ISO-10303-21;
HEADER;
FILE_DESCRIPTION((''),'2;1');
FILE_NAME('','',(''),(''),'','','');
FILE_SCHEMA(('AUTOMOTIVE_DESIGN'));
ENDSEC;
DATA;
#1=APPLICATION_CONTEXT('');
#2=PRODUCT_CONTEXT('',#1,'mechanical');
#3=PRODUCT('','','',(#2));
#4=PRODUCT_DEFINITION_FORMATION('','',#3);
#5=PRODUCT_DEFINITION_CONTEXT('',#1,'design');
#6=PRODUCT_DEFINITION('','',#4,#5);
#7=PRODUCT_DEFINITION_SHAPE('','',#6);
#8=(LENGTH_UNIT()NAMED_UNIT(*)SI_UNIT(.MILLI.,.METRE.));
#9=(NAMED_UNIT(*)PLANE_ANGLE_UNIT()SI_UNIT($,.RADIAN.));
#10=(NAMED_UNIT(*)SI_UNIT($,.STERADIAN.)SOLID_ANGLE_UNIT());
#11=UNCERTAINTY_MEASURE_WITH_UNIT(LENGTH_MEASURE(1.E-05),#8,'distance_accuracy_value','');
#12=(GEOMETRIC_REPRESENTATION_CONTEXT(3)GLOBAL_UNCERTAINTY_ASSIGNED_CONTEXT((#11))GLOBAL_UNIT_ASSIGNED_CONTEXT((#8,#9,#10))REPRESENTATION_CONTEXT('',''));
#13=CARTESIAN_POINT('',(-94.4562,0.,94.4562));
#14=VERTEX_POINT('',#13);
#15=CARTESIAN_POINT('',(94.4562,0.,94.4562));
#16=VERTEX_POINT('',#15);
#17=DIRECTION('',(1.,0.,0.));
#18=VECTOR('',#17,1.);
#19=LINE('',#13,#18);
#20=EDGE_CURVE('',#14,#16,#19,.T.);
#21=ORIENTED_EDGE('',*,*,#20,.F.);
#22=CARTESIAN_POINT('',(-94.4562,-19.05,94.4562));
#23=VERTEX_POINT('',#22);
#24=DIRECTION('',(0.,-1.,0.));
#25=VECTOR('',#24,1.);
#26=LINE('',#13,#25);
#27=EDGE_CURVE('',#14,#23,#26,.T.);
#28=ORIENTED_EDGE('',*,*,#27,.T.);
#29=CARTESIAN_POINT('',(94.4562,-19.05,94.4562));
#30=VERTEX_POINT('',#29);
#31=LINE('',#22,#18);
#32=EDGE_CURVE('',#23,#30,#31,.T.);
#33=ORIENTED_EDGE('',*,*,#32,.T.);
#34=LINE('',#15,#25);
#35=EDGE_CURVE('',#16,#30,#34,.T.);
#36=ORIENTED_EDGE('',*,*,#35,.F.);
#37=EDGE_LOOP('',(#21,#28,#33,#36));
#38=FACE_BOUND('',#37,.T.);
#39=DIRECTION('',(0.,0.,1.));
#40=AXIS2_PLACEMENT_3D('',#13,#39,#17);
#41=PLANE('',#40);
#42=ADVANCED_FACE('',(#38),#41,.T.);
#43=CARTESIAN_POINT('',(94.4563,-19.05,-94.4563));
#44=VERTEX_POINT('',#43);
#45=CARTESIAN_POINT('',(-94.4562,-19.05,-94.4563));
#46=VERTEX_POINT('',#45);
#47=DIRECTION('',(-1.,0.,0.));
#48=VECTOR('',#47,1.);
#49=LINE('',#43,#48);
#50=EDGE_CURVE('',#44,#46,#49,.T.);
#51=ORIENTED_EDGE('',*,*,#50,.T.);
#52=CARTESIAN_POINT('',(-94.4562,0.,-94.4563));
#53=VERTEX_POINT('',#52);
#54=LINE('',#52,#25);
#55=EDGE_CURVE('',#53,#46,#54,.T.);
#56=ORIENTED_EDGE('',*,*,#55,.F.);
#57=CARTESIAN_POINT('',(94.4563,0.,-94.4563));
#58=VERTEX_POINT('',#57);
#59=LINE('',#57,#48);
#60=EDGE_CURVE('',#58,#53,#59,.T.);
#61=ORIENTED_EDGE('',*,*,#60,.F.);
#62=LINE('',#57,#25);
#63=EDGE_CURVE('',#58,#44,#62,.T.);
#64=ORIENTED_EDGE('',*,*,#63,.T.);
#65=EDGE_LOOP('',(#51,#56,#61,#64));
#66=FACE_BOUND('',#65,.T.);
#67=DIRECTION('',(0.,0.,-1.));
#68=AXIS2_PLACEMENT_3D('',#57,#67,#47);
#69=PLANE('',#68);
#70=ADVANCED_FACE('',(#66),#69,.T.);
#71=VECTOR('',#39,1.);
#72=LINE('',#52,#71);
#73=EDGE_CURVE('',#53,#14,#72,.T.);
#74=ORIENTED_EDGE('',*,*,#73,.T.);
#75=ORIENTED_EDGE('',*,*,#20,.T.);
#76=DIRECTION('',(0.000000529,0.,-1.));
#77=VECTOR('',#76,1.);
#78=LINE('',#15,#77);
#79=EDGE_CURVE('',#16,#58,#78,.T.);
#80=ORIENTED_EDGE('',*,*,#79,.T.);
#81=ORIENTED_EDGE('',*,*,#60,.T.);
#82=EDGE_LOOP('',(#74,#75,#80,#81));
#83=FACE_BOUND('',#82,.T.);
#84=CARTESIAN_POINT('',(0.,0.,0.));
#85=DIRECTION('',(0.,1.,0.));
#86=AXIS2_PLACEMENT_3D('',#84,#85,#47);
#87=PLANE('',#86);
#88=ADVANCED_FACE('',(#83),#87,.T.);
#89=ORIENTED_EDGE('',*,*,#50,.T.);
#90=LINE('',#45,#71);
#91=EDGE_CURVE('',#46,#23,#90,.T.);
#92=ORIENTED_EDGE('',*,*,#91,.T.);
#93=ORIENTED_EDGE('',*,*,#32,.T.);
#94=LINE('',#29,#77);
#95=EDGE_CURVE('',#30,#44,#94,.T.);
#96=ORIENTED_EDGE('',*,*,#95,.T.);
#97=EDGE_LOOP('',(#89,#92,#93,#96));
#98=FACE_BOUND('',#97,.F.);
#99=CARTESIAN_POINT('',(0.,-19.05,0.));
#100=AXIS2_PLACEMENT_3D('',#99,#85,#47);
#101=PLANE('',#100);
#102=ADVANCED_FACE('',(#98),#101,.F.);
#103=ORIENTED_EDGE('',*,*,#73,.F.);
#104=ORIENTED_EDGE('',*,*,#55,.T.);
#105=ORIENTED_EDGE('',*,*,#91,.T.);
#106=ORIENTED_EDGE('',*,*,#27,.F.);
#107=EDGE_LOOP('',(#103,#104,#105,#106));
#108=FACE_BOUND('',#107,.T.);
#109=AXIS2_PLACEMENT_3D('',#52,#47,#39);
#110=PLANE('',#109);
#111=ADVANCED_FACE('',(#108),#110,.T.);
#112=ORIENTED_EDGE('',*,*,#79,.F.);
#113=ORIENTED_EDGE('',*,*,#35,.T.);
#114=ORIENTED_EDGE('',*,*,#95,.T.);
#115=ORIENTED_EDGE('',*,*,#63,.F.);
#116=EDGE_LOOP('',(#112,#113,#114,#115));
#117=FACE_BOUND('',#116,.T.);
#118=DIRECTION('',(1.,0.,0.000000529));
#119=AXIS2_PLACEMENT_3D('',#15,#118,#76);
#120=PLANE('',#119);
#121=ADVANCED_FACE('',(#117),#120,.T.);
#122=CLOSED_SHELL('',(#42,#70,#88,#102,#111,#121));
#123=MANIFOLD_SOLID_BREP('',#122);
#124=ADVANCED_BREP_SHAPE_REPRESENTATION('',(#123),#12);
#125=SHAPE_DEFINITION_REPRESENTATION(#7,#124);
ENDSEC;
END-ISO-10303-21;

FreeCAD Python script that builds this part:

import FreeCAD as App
import Part
import Sketcher
from FreeCAD import Vector
Q = App.Units.Quantity


def add_polygon(sketch, points):
    """Adds a closed chain of lines whose ends are joined by coincident constraints."""
    first, n = sketch.GeometryCount, len(points)
    for a, b in zip(points, points[1:] + points[:1]):
        sketch.addGeometry(Part.LineSegment(App.Vector(*a, 0), App.Vector(*b, 0)), False)
    for i in range(n):
        sketch.addConstraint(Sketcher.Constraint("Coincident", first + i, 2, first + (i + 1) % n, 1))

doc = App.newDocument("Part")
body = doc.addObject("PartDesign::Body", "Body")

# Sketch on XZ plane
sketch1 = body.newObject("Sketcher::SketchObject", "Sketch")
sketch1.AttachmentSupport = (doc.getObject("XZ_Plane"), [""])
sketch1.MapMode = "FlatFace"
add_polygon(sketch1, [(94, 94), (94, -94), (-94, -94), (-94, 94)])  # lines 0-3
sketch1.addConstraint([
    Sketcher.Constraint("Vertical", 0),
    Sketcher.Constraint("Horizontal", 1),
    Sketcher.Constraint("Vertical", 2),
    Sketcher.Constraint("Horizontal", 3),
    Sketcher.Constraint("Symmetric", 0, 2, 2, 2, -1, 1),
    Sketcher.Constraint("Equal", 3, 0),
    Sketcher.Constraint("DistanceX", 1, 2, 1, 1, Q("7.4375 in")),
])
pad1 = body.newObject("PartDesign::Pad", "Pad")
pad1.Profile = sketch1
pad1.Length = Q("0.75 in")

doc.recompute()
